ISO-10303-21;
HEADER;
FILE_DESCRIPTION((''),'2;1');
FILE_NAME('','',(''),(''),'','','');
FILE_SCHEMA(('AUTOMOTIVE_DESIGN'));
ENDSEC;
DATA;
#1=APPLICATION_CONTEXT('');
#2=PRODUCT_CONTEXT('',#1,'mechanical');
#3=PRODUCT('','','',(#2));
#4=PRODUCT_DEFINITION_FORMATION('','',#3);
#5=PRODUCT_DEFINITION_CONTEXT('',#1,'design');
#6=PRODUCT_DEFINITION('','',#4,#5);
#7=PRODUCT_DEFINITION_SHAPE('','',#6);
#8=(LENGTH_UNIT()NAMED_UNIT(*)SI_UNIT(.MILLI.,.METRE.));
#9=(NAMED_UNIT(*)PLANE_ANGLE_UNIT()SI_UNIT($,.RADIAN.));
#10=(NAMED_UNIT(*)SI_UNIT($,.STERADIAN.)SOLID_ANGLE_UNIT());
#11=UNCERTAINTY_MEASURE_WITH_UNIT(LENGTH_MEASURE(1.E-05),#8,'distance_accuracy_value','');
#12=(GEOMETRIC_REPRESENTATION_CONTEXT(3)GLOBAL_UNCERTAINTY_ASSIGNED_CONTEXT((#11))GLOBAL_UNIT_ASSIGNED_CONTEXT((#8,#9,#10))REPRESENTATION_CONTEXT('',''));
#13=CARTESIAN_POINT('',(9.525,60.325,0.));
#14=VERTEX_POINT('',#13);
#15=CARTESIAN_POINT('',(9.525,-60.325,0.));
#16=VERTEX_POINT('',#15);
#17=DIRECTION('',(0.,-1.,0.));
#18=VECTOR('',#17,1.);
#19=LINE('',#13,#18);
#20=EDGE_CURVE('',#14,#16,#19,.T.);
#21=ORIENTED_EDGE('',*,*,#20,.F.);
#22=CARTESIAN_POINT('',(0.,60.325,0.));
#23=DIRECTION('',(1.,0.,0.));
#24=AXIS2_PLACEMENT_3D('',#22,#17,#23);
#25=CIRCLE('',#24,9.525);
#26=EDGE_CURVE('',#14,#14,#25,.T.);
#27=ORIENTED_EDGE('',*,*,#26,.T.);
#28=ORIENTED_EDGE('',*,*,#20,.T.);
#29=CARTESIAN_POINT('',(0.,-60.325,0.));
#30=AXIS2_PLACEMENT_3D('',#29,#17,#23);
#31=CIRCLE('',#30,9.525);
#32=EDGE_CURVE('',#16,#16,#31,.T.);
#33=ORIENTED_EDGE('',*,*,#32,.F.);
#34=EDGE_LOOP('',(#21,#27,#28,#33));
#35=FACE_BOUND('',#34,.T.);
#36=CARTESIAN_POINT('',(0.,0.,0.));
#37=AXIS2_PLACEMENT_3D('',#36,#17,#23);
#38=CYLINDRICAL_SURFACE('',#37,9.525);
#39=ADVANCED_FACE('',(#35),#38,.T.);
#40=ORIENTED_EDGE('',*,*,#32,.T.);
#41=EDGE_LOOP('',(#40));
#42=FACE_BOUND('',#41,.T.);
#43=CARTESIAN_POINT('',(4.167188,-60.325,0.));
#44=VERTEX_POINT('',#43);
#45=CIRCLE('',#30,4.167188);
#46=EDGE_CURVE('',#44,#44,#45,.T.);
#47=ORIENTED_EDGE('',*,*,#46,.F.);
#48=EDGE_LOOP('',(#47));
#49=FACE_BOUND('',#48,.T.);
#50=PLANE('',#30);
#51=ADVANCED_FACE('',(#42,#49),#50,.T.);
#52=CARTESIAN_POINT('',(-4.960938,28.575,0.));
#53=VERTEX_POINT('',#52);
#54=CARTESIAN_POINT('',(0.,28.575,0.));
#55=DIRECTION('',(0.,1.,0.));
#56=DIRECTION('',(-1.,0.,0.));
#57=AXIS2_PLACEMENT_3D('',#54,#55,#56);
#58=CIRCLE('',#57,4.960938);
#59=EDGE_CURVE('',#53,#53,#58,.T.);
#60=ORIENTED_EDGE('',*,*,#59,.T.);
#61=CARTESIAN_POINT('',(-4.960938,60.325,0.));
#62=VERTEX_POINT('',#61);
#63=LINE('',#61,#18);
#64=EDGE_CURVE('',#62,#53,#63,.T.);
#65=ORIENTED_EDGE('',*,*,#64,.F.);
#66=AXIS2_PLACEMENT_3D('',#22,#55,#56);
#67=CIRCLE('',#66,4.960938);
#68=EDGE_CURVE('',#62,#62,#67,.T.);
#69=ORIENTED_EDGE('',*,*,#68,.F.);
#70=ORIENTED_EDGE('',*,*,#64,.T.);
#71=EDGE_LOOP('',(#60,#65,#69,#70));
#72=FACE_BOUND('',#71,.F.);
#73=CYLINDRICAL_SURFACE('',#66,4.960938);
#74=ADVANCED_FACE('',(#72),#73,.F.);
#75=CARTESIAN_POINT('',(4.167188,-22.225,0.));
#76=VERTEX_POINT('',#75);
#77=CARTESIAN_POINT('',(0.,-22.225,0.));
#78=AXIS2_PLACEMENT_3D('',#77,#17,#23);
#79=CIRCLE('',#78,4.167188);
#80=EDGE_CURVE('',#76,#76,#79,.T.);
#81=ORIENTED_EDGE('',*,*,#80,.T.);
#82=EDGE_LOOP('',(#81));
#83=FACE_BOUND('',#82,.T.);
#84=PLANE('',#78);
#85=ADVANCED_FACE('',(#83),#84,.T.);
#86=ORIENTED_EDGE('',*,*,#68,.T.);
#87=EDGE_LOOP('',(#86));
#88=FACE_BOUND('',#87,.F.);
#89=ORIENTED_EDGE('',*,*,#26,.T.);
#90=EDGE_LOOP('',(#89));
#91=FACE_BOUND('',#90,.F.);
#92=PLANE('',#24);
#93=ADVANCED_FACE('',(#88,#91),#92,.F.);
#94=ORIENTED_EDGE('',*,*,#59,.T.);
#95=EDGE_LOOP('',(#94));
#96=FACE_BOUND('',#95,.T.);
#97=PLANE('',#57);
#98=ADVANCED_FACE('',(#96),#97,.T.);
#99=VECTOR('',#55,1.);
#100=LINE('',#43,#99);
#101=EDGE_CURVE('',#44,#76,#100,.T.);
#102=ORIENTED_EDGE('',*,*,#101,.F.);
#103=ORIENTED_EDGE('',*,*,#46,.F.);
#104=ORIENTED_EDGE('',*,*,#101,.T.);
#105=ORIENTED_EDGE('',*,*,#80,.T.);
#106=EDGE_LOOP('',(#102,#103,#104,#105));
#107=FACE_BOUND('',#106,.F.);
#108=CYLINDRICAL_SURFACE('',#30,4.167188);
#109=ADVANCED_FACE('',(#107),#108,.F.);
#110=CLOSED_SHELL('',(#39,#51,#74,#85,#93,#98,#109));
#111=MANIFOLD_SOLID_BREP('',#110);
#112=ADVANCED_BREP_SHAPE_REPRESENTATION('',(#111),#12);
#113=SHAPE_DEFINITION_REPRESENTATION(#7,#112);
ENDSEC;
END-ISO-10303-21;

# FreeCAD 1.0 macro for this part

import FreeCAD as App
import Part
import Sketcher

V = App.Vector
Q = App.Units.Quantity

doc = App.newDocument("Part")
body = doc.addObject("PartDesign::Body", "Body")

# Sketch on XZ plane
sketch1 = doc.addObject("Sketcher::SketchObject", "Sketch")
body.addObject(sketch1)
sketch1.AttachmentSupport = (doc.XZ_Plane, [""])
sketch1.MapMode = "FlatFace"
sketch1.addGeometry(Part.Circle(V(0, 0, 0), V(0, 0, 1), 9.525), False)
sketch1.addConstraint([
    Sketcher.Constraint("Coincident", 0, 3, -1, 1),
    Sketcher.Constraint("Diameter", 0, Q("0.75 in")),
])
pad1 = doc.addObject("PartDesign::Pad", "Pad")
body.addObject(pad1)
pad1.Profile = sketch1
pad1.Length = Q("4.75 in")
pad1.Midplane = True

# Sketch on XZ plane
sketch2 = doc.addObject("Sketcher::SketchObject", "Sketch001")
body.addObject(sketch2)
sketch2.AttachmentSupport = (doc.XZ_Plane, [""])
sketch2.MapMode = "FlatFace"
sketch2.AttachmentOffset = App.Placement(V(0, 0, 2.375 * 25.4), App.Rotation())
sketch2.addGeometry(Part.Circle(V(0, 0, 0), V(0, 0, 1), 4.167188), False)
sketch2.addConstraint([
    Sketcher.Constraint("Coincident", 0, 3, -1, 1),
    Sketcher.Constraint("Diameter", 0, Q("0.328125 in")),
])
pocket1 = doc.addObject("PartDesign::Pocket", "Pocket")
body.addObject(pocket1)
pocket1.Profile = sketch2
pocket1.Length = Q("1.5 in")

# Sketch on XZ plane
sketch3 = doc.addObject("Sketcher::SketchObject", "Sketch002")
body.addObject(sketch3)
sketch3.AttachmentSupport = (doc.XZ_Plane, [""])
sketch3.MapMode = "FlatFace"
sketch3.AttachmentOffset = App.Placement(V(0, 0, -2.375 * 25.4), App.Rotation())
sketch3.addGeometry(Part.Circle(V(0, 0, 0), V(0, 0, 1), 4.960938), False)
sketch3.addConstraint([
    Sketcher.Constraint("Coincident", 0, 3, -1, 1),
    Sketcher.Constraint("Diameter", 0, Q("0.390625 in")),
])
pocket2 = doc.addObject("PartDesign::Pocket", "Pocket001")
body.addObject(pocket2)
pocket2.Profile = sketch3
pocket2.Length = Q("1.25 in")
pocket2.Reversed = True

doc.recompute()
